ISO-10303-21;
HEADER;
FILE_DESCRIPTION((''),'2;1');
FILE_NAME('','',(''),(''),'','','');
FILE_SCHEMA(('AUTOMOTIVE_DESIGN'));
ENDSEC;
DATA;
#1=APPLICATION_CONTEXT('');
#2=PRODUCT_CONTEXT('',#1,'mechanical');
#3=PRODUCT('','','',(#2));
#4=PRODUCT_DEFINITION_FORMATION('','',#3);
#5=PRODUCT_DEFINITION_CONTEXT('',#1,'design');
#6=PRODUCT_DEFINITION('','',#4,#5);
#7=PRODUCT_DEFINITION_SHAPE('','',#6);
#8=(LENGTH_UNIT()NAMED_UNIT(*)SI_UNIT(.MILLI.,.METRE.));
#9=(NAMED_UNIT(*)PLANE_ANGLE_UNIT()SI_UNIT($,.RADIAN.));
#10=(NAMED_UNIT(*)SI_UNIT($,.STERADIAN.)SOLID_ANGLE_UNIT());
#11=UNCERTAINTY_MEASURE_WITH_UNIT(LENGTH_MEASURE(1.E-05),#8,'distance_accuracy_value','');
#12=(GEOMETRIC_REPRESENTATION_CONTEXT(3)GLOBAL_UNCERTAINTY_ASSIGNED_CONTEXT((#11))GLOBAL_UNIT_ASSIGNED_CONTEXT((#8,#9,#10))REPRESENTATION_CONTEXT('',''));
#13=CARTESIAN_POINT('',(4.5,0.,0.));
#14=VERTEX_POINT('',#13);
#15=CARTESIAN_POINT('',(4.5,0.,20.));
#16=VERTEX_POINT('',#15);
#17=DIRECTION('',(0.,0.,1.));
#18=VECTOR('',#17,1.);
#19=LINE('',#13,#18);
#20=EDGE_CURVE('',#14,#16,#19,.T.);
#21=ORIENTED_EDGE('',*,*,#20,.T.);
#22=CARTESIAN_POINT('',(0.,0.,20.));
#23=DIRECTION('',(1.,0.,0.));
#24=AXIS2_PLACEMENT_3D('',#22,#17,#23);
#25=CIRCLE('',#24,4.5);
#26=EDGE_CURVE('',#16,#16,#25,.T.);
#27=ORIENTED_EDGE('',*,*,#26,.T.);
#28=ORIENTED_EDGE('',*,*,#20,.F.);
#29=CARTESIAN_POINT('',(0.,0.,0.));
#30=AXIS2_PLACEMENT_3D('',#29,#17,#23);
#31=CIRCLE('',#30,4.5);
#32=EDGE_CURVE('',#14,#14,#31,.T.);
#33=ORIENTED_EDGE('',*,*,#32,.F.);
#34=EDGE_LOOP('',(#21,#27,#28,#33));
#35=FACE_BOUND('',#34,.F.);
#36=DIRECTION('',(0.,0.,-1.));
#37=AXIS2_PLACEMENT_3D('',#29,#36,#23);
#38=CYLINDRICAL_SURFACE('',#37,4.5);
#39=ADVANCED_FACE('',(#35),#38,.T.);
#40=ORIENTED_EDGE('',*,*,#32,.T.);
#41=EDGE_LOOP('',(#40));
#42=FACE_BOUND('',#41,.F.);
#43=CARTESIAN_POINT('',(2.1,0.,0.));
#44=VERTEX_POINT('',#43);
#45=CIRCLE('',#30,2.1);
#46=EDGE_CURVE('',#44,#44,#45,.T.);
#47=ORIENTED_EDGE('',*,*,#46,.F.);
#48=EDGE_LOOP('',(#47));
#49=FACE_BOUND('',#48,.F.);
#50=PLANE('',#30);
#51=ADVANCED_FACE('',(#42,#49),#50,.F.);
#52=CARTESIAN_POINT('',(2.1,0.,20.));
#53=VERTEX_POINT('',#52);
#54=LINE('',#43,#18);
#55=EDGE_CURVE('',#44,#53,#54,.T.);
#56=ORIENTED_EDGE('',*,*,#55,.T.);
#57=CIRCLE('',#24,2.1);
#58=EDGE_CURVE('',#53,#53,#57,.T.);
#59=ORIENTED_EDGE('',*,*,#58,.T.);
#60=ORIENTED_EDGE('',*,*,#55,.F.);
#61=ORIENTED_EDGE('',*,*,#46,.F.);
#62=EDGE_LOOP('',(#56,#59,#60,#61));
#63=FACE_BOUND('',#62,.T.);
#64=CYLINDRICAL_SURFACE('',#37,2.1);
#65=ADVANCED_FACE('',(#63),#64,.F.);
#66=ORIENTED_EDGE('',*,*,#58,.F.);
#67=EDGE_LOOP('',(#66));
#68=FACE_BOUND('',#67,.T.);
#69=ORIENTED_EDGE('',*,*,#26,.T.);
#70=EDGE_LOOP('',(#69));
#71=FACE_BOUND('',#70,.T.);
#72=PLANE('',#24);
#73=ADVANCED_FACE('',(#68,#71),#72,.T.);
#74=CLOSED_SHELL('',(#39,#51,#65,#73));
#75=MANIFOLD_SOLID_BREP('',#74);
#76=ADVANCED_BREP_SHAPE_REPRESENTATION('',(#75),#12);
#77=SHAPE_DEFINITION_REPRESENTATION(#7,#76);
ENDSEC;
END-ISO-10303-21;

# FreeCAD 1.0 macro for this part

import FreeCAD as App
import Part
import Sketcher

V = App.Vector
Q = App.Units.Quantity

doc = App.newDocument("Part")
body = doc.addObject("PartDesign::Body", "Body")

sketch1 = body.newObject("Sketcher::SketchObject", "Sketch")
sketch1.AttachmentSupport = (doc.getObject("XY_Plane"), [""])
sketch1.MapMode = "FlatFace"
sketch1.addGeometry([
    Part.Circle(V(0, 0, 0), V(0, 0, 1), 4.5),
    Part.Circle(V(0, 0, 0), V(0, 0, 1), 2.1),
], False)
sketch1.addConstraint([
    Sketcher.Constraint("Coincident", 0, 3, -1, 1),
    Sketcher.Constraint("Coincident", 1, 3, -1, 1),
    Sketcher.Constraint("Diameter", 0, Q("9 mm")),
    Sketcher.Constraint("Diameter", 1, Q("4.2 mm")),
])
pad1 = body.newObject("PartDesign::Pad", "Pad")
pad1.Profile = sketch1
pad1.Length = 20

doc.recompute()
